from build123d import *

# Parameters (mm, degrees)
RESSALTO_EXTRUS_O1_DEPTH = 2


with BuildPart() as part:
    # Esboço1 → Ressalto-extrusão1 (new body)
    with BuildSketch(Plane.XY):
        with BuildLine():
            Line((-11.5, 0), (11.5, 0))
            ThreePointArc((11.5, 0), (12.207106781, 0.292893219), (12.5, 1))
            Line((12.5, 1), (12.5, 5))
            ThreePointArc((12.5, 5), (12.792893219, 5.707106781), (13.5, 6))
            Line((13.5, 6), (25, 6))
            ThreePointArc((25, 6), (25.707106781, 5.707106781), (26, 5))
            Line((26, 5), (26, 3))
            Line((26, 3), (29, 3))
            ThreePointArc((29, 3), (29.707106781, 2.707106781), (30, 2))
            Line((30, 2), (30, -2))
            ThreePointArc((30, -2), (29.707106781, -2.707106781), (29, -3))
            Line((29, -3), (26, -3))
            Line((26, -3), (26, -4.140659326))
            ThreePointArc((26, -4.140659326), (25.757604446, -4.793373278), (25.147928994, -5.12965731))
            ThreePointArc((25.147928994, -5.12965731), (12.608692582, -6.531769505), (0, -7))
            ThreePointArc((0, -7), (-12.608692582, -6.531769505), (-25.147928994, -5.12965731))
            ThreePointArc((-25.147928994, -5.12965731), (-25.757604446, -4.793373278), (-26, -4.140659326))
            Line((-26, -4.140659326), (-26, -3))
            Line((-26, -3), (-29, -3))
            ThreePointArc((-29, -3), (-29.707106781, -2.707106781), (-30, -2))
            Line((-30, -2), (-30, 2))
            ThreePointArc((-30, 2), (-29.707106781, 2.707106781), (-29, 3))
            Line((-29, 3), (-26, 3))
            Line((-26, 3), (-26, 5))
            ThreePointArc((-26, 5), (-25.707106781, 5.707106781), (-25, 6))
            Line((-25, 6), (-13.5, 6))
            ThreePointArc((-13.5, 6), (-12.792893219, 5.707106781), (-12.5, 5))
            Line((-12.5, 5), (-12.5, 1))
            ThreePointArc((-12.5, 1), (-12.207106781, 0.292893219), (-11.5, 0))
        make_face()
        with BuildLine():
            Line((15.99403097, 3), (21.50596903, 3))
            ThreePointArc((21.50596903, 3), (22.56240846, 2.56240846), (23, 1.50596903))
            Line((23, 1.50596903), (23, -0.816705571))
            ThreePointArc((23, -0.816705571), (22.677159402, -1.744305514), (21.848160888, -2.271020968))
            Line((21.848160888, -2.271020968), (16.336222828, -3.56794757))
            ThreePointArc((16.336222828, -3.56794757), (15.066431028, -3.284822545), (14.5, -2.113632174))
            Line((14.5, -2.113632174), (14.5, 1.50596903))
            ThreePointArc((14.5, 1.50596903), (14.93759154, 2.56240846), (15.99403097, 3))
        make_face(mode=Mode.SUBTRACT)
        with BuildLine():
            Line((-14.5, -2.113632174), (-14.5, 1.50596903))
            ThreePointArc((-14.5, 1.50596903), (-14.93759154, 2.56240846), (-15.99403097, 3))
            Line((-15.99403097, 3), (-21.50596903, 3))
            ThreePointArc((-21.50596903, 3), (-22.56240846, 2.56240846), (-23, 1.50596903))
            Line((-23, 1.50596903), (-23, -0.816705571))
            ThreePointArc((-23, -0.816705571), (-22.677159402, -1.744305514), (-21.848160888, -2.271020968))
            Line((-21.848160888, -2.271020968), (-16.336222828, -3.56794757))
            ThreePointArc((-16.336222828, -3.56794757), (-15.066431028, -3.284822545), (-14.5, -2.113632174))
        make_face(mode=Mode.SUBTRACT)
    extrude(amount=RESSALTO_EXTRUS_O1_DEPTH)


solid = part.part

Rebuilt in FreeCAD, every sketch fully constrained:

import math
import FreeCAD as App
import Part
import Sketcher

doc = App.newDocument("Part")
body = doc.addObject("PartDesign::Body", "Body")

# Sketch on XY plane
sketch1 = body.newObject("Sketcher::SketchObject", "Sketch")
sketch1.AttachmentSupport = (doc.getObject("XY_Plane"), [""])
sketch1.MapMode = "FlatFace"
sketch1.addGeometry([
    Part.LineSegment(App.Vector(11.5, 0, 0), App.Vector(-11.5, 0, 0)),  # 0
    Part.ArcOfCircle(Part.Circle(App.Vector(-11.5, 1, 0), App.Vector(0, 0, 1), 1), math.radians(-180), math.radians(-90)),  # 1
    Part.LineSegment(App.Vector(-12.5, 1, 0), App.Vector(-12.5, 5, 0)),  # 2
    Part.ArcOfCircle(Part.Circle(App.Vector(-13.5, 5, 0), App.Vector(0, 0, 1), 1), math.radians(0), math.radians(90)),  # 3
    Part.LineSegment(App.Vector(-13.5, 6, 0), App.Vector(-25, 6, 0)),  # 4
    Part.ArcOfCircle(Part.Circle(App.Vector(-25, 5, 0), App.Vector(0, 0, 1), 1), math.radians(90), math.radians(180)),  # 5
    Part.LineSegment(App.Vector(-26, 5, 0), App.Vector(-26, 3, 0)),  # 6
    Part.LineSegment(App.Vector(-26, 3, 0), App.Vector(-29, 3, 0)),  # 7
    Part.ArcOfCircle(Part.Circle(App.Vector(-29, 2, 0), App.Vector(0, 0, 1), 1), math.radians(90), math.radians(180)),  # 8
    Part.LineSegment(App.Vector(-30, 2, 0), App.Vector(-30, -2, 0)),  # 9
    Part.ArcOfCircle(Part.Circle(App.Vector(-29, -2, 0), App.Vector(0, 0, 1), 1), math.radians(-180), math.radians(-90)),  # 10
    Part.LineSegment(App.Vector(-29, -3, 0), App.Vector(-26, -3, 0)),  # 11
    Part.LineSegment(App.Vector(-26, -3, 0), App.Vector(-26, -4.1, 0)),  # 12
    Part.ArcOfCircle(Part.Circle(App.Vector(-25, -4.1, 0), App.Vector(0, 0, 1), 1), math.radians(180), math.radians(261)),  # 13
    Part.ArcOfCircle(Part.Circle(App.Vector(0, 163, 0), App.Vector(0, 0, 1), 170), math.radians(-98.51), math.radians(-90)),  # 14
    Part.ArcOfCircle(Part.Circle(App.Vector(0, 163, 0), App.Vector(0, 0, 1), 170), math.radians(-90), math.radians(-81.49)),  # 15
    Part.ArcOfCircle(Part.Circle(App.Vector(25, -4.1, 0), App.Vector(0, 0, 1), 1), math.radians(-81), math.radians(0)),  # 16
    Part.LineSegment(App.Vector(26, -4.1, 0), App.Vector(26, -3, 0)),  # 17
    Part.LineSegment(App.Vector(26, -3, 0), App.Vector(29, -3, 0)),  # 18
    Part.ArcOfCircle(Part.Circle(App.Vector(29, -2, 0), App.Vector(0, 0, 1), 1), math.radians(-90), math.radians(0)),  # 19
    Part.LineSegment(App.Vector(30, -2, 0), App.Vector(30, 2, 0)),  # 20
    Part.ArcOfCircle(Part.Circle(App.Vector(29, 2, 0), App.Vector(0, 0, 1), 1), math.radians(0), math.radians(90)),  # 21
    Part.LineSegment(App.Vector(29, 3, 0), App.Vector(26, 3, 0)),  # 22
    Part.LineSegment(App.Vector(26, 3, 0), App.Vector(26, 5, 0)),  # 23
    Part.ArcOfCircle(Part.Circle(App.Vector(25, 5, 0), App.Vector(0, 0, 1), 1), math.radians(0), math.radians(90)),  # 24
    Part.LineSegment(App.Vector(25, 6, 0), App.Vector(13.5, 6, 0)),  # 25
    Part.ArcOfCircle(Part.Circle(App.Vector(13.5, 5, 0), App.Vector(0, 0, 1), 1), math.radians(90), math.radians(180)),  # 26
    Part.LineSegment(App.Vector(12.5, 5, 0), App.Vector(12.5, 1, 0)),  # 27
    Part.ArcOfCircle(Part.Circle(App.Vector(11.5, 1, 0), App.Vector(0, 0, 1), 1), math.radians(-90), math.radians(0)),  # 28
    Part.LineSegment(App.Vector(16, 3, 0), App.Vector(21.5, 3, 0)),  # 29
    Part.ArcOfCircle(Part.Circle(App.Vector(21.5, 1.5, 0), App.Vector(0, 0, 1), 1.5), math.radians(0), math.radians(90)),  # 30
    Part.LineSegment(App.Vector(23, 1.5, 0), App.Vector(23, -0.8, 0)),  # 31
    Part.ArcOfCircle(Part.Circle(App.Vector(21.5, -0.8, 0), App.Vector(0, 0, 1), 1.5), math.radians(-77), math.radians(0)),  # 32
    Part.LineSegment(App.Vector(21.8, -2.3, 0), App.Vector(16.3, -3.6, 0)),  # 33
    Part.ArcOfCircle(Part.Circle(App.Vector(16, -2.1, 0), App.Vector(0, 0, 1), 1.5), math.radians(-180), math.radians(-77)),  # 34
    Part.LineSegment(App.Vector(14.5, -2.1, 0), App.Vector(14.5, 1.5, 0)),  # 35
    Part.ArcOfCircle(Part.Circle(App.Vector(16, 1.5, 0), App.Vector(0, 0, 1), 1.5), math.radians(90), math.radians(180)),  # 36
    Part.ArcOfCircle(Part.Circle(App.Vector(-16, -2.1, 0), App.Vector(0, 0, 1), 1.5), math.radians(-103), math.radians(0)),  # 37
    Part.LineSegment(App.Vector(-16.3, -3.6, 0), App.Vector(-21.8, -2.3, 0)),  # 38
    Part.ArcOfCircle(Part.Circle(App.Vector(-21.5, -0.8, 0), App.Vector(0, 0, 1), 1.5), math.radians(180), math.radians(257)),  # 39
    Part.LineSegment(App.Vector(-23, -0.8, 0), App.Vector(-23, 1.5, 0)),  # 40
    Part.ArcOfCircle(Part.Circle(App.Vector(-21.5, 1.5, 0), App.Vector(0, 0, 1), 1.5), math.radians(90), math.radians(180)),  # 41
    Part.LineSegment(App.Vector(-21.5, 3, 0), App.Vector(-16, 3, 0)),  # 42
    Part.ArcOfCircle(Part.Circle(App.Vector(-16, 1.5, 0), App.Vector(0, 0, 1), 1.5), math.radians(0), math.radians(90)),  # 43
    Part.LineSegment(App.Vector(-14.5, 1.5, 0), App.Vector(-14.5, -2.1, 0)),  # 44
], False)
sketch1.addConstraint([
    Sketcher.Constraint("Tangent", 0, 2, 1, 2),
    Sketcher.Constraint("Tangent", 1, 1, 2, 1),
    Sketcher.Constraint("Tangent", 2, 2, 3, 1),
    Sketcher.Constraint("Tangent", 3, 2, 4, 1),
    Sketcher.Constraint("Tangent", 4, 2, 5, 1),
    Sketcher.Constraint("Tangent", 5, 2, 6, 1),
    Sketcher.Constraint("Coincident", 6, 2, 7, 1),
    Sketcher.Constraint("Tangent", 7, 2, 8, 1),
    Sketcher.Constraint("Tangent", 8, 2, 9, 1),
    Sketcher.Constraint("Tangent", 9, 2, 10, 1),
    Sketcher.Constraint("Tangent", 10, 2, 11, 1),
    Sketcher.Constraint("Coincident", 11, 2, 12, 1),
    Sketcher.Constraint("Tangent", 12, 2, 13, 1),
    Sketcher.Constraint("Tangent", 13, 2, 14, 1),
    Sketcher.Constraint("Tangent", 14, 2, 15, 1),
    Sketcher.Constraint("Tangent", 15, 2, 16, 1),
    Sketcher.Constraint("Tangent", 16, 2, 17, 1),
    Sketcher.Constraint("Coincident", 17, 2, 18, 1),
    Sketcher.Constraint("Tangent", 18, 2, 19, 1),
    Sketcher.Constraint("Tangent", 19, 2, 20, 1),
    Sketcher.Constraint("Tangent", 20, 2, 21, 1),
    Sketcher.Constraint("Tangent", 21, 2, 22, 1),
    Sketcher.Constraint("Coincident", 22, 2, 23, 1),
    Sketcher.Constraint("Tangent", 23, 2, 24, 1),
    Sketcher.Constraint("Tangent", 24, 2, 25, 1),
    Sketcher.Constraint("Tangent", 25, 2, 26, 1),
    Sketcher.Constraint("Tangent", 26, 2, 27, 1),
    Sketcher.Constraint("Tangent", 27, 2, 28, 2),
    Sketcher.Constraint("Tangent", 28, 1, 0, 1),
    Sketcher.Constraint("Tangent", 29, 2, 30, 2),
    Sketcher.Constraint("Tangent", 30, 1, 31, 1),
    Sketcher.Constraint("Tangent", 31, 2, 32, 2),
    Sketcher.Constraint("Tangent", 32, 1, 33, 1),
    Sketcher.Constraint("Tangent", 33, 2, 34, 2),
    Sketcher.Constraint("Tangent", 34, 1, 35, 1),
    Sketcher.Constraint("Tangent", 35, 2, 36, 2),
    Sketcher.Constraint("Tangent", 36, 1, 29, 1),
    Sketcher.Constraint("Tangent", 37, 1, 38, 1),
    Sketcher.Constraint("Tangent", 38, 2, 39, 2),
    Sketcher.Constraint("Tangent", 39, 1, 40, 1),
    Sketcher.Constraint("Tangent", 40, 2, 41, 2),
    Sketcher.Constraint("Tangent", 41, 1, 42, 1),
    Sketcher.Constraint("Tangent", 42, 2, 43, 2),
    Sketcher.Constraint("Tangent", 43, 1, 44, 1),
    Sketcher.Constraint("Tangent", 44, 2, 37, 2),
    Sketcher.Constraint("Horizontal", 0),
    Sketcher.Constraint("Vertical", 2),
    Sketcher.Constraint("Horizontal", 4),
    Sketcher.Constraint("Vertical", 6),
    Sketcher.Constraint("Horizontal", 7),
    Sketcher.Constraint("Vertical", 9),
    Sketcher.Constraint("Horizontal", 11),
    Sketcher.Constraint("Vertical", 12),
    Sketcher.Constraint("Vertical", 17),
    Sketcher.Constraint("Horizontal", 18),
    Sketcher.Constraint("Vertical", 20),
    Sketcher.Constraint("Horizontal", 22),
    Sketcher.Constraint("Vertical", 23),
    Sketcher.Constraint("Horizontal", 25),
    Sketcher.Constraint("Vertical", 27),
    Sketcher.Constraint("Horizontal", 29),
    Sketcher.Constraint("Vertical", 31),
    Sketcher.Constraint("Vertical", 35),
    Sketcher.Constraint("Vertical", 40),
    Sketcher.Constraint("Horizontal", 42),
    Sketcher.Constraint("Vertical", 44),
    Sketcher.Constraint("Equal", 1, 3),
    Sketcher.Constraint("Equal", 3, 5),
    Sketcher.Constraint("Equal", 5, 8),
    Sketcher.Constraint("Equal", 8, 10),
    Sketcher.Constraint("Equal", 10, 13),
    Sketcher.Constraint("Equal", 14, 15),
    Sketcher.Constraint("Equal", 13, 16),
    Sketcher.Constraint("Equal", 16, 19),
    Sketcher.Constraint("Equal", 19, 21),
    Sketcher.Constraint("Equal", 21, 24),
    Sketcher.Constraint("Equal", 24, 26),
    Sketcher.Constraint("Equal", 26, 28),
    Sketcher.Constraint("Equal", 30, 32),
    Sketcher.Constraint("Equal", 32, 34),
    Sketcher.Constraint("Equal", 34, 36),
    Sketcher.Constraint("Equal", 36, 37),
    Sketcher.Constraint("Equal", 37, 39),
    Sketcher.Constraint("Equal", 39, 41),
    Sketcher.Constraint("Equal", 41, 43),
    Sketcher.Constraint("Symmetric", 8, 3, 19, 3, -1, 1),
    Sketcher.Constraint("Symmetric", 11, 2, 22, 2, -1, 1),
    Sketcher.Constraint("Symmetric", 0, 2, 28, 1, -1, 1),
    Sketcher.Constraint("Symmetric", 13, 3, 16, 3, -2),
    Sketcher.Constraint("Symmetric", 5, 3, 24, 3, -2),
    Sketcher.Constraint("Symmetric", 34, 3, 37, 3, -2),
    Sketcher.Constraint("Symmetric", 32, 3, 39, 3, -2),
    Sketcher.Constraint("PointOnObject", 14, 2, -2),
    Sketcher.Constraint("Horizontal", 10, 3, 19, 3),
    Sketcher.Constraint("Horizontal", 36, 3, 41, 3),
    Sketcher.Constraint("Horizontal", 22, 2, 29, 2),
    Sketcher.Constraint("Equal", 2, 9),
    Sketcher.Constraint("Radius", 1, 1.0),
    Sketcher.Constraint("Radius", 14, 170.0),
    Sketcher.Constraint("DistanceX", 0, 2, 0, 1, 23.0),
    Sketcher.Constraint("DistanceX", 7, 2, 7, 1, 3.0),
    Sketcher.Constraint("DistanceY", 2, 1, 2, 2, 4.0),
    Sketcher.Constraint("DistanceX", 4, 2, 4, 1, 11.5),
    Sketcher.Constraint("DistanceY", -1, 1, 14, 3, 163.0),
    Sketcher.Constraint("DistanceX", -1, 1, 30, 1, 23.0),
    Sketcher.Constraint("DistanceX", -1, 1, 34, 1, 14.5),
    Sketcher.Constraint("Radius", 30, 1.494031),
    Sketcher.Constraint("DistanceY", 35, 1, 35, 2, 3.619601),
    Sketcher.Constraint("DistanceY", 31, 2, 31, 1, 2.322675),
])
pad1 = body.newObject("PartDesign::Pad", "Pad")
pad1.Profile = sketch1
pad1.Length = 2

doc.recompute()
